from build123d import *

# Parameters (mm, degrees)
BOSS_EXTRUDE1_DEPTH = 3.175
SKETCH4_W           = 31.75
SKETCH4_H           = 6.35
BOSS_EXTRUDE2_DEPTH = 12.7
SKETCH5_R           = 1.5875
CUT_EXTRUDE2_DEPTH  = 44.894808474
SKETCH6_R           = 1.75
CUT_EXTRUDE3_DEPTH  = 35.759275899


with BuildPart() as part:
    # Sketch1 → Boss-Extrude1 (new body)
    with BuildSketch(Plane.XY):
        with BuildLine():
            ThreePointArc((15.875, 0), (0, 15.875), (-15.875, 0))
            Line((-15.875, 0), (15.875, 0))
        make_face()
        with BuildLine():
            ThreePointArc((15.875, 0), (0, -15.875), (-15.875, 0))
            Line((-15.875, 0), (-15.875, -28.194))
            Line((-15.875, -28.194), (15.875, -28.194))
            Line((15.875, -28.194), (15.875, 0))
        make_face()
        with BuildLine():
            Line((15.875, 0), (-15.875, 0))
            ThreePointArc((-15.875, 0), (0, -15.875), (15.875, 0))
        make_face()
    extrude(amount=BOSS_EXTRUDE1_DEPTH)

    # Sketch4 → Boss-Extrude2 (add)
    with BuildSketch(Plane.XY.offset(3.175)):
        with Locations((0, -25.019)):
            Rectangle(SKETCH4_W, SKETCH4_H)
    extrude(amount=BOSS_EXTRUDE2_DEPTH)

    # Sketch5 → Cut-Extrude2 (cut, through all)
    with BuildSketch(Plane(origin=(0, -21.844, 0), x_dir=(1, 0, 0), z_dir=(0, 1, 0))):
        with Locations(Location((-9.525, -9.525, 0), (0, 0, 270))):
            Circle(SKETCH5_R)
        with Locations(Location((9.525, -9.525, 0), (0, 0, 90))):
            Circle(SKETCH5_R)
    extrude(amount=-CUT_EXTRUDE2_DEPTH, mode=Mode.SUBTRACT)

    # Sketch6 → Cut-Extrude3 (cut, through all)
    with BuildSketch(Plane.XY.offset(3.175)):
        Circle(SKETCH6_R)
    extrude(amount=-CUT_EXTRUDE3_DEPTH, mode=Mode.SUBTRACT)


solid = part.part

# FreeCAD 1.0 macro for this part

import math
import FreeCAD as App
import Part
import Sketcher

V = App.Vector
Q = App.Units.Quantity


def add_polygon(sketch, points):
    """Adds a closed chain of lines whose ends are joined by coincident constraints."""
    first, n = sketch.GeometryCount, len(points)
    for a, b in zip(points, points[1:] + points[:1]):
        sketch.addGeometry(Part.LineSegment(App.Vector(*a, 0), App.Vector(*b, 0)), False)
    for i in range(n):
        sketch.addConstraint(Sketcher.Constraint("Coincident", first + i, 2, first + (i + 1) % n, 1))

doc = App.newDocument("Part")
body = doc.addObject("PartDesign::Body", "Body")

# Sketch on XY plane
sketch1 = doc.addObject("Sketcher::SketchObject", "Sketch")
body.addObject(sketch1)
sketch1.AttachmentSupport = (doc.XY_Plane, [""])
sketch1.MapMode = "FlatFace"
sketch1.addGeometry(Part.ArcOfCircle(Part.Circle(V(0, 0, 0), V(0, 0, 1), 15.875), math.radians(0), math.radians(180)), False)
sketch1.addGeometry(Part.LineSegment(V(-15.875, 0, 0), V(-15.875, -28.194, 0)), False)
sketch1.addGeometry(Part.LineSegment(V(-15.875, -28.194, 0), V(15.875, -28.194, 0)), False)
sketch1.addGeometry(Part.LineSegment(V(15.875, -28.194, 0), V(15.875, 0, 0)), False)
sketch1.addConstraint(Sketcher.Constraint("Tangent", 0, 2, 1, 1))
sketch1.addConstraint(Sketcher.Constraint("Coincident", 1, 2, 2, 1))
sketch1.addConstraint(Sketcher.Constraint("Coincident", 2, 2, 3, 1))
sketch1.addConstraint(Sketcher.Constraint("Tangent", 3, 2, 0, 1))
sketch1.addConstraint(Sketcher.Constraint("Vertical", 1))
sketch1.addConstraint(Sketcher.Constraint("Horizontal", 2))
sketch1.addConstraint(Sketcher.Constraint("Vertical", 3))
sketch1.addConstraint(Sketcher.Constraint("Coincident", 0, 3, -1, 1))
sketch1.addConstraint(Sketcher.Constraint("Radius", 0, Q("0.625 in")))
sketch1.addConstraint(Sketcher.Constraint("DistanceY", 1, 2, 1, 1, Q("1.11 in")))
pad1 = doc.addObject("PartDesign::Pad", "Pad")
body.addObject(pad1)
pad1.Profile = sketch1
pad1.Length = Q("0.125 in")

# Sketch on XY plane
sketch2 = doc.addObject("Sketcher::SketchObject", "Sketch001")
body.addObject(sketch2)
sketch2.AttachmentSupport = (doc.XY_Plane, [""])
sketch2.MapMode = "FlatFace"
sketch2.AttachmentOffset = App.Placement(V(0, 0, 0.125 * 25.4), App.Rotation())
add_polygon(sketch2, [(-15.875, -21.844), (-15.875, -28.194), (15.875, -28.194), (15.875, -21.844)])  # lines 0-3
sketch2.addConstraint(Sketcher.Constraint("Vertical", 0))
sketch2.addConstraint(Sketcher.Constraint("Horizontal", 1))
sketch2.addConstraint(Sketcher.Constraint("Vertical", 2))
sketch2.addConstraint(Sketcher.Constraint("Horizontal", 3))
sketch2.addConstraint(Sketcher.Constraint("DistanceX", 1, 1, 1, 2, Q("1.25 in")))
sketch2.addConstraint(Sketcher.Constraint("DistanceY", 0, 2, 0, 1, Q("0.25 in")))
sketch2.addConstraint(Sketcher.Constraint("DistanceY", 0, 2, -1, 1, Q("1.11 in")))
sketch2.addConstraint(Sketcher.Constraint("DistanceX", 0, 2, -1, 1, Q("0.625 in")))
pad2 = doc.addObject("PartDesign::Pad", "Pad001")
body.addObject(pad2)
pad2.Profile = sketch2
pad2.Length = Q("0.5 in")

# Sketch on XZ plane
sketch3 = doc.addObject("Sketcher::SketchObject", "Sketch002")
body.addObject(sketch3)
sketch3.AttachmentSupport = (doc.XZ_Plane, [""])
sketch3.MapMode = "FlatFace"
sketch3.AttachmentOffset = App.Placement(V(0, 0, 0.86 * 25.4), App.Rotation())
sketch3.addGeometry(Part.Circle(V(-9.525, 9.525, 0), V(0, 0, 1), 1.5875), False)
sketch3.addGeometry(Part.Circle(V(9.525, 9.525, 0), V(0, 0, 1), 1.5875), False)
sketch3.addConstraint(Sketcher.Constraint("Equal", 0, 1))
sketch3.addConstraint(Sketcher.Constraint("Symmetric", 0, 3, 1, 3, -2))
sketch3.addConstraint(Sketcher.Constraint("Diameter", 0, Q("0.125 in")))
sketch3.addConstraint(Sketcher.Constraint("DistanceX", 0, 3, 1, 3, Q("0.75 in")))
sketch3.addConstraint(Sketcher.Constraint("DistanceY", -1, 1, 0, 3, Q("0.375 in")))
pocket1 = doc.addObject("PartDesign::Pocket", "Pocket")
body.addObject(pocket1)
pocket1.Profile = sketch3
pocket1.Type = "ThroughAll"
pocket1.Reversed = True

# Sketch on XY plane
sketch4 = doc.addObject("Sketcher::SketchObject", "Sketch003")
body.addObject(sketch4)
sketch4.AttachmentSupport = (doc.XY_Plane, [""])
sketch4.MapMode = "FlatFace"
sketch4.AttachmentOffset = App.Placement(V(0, 0, 0.125 * 25.4), App.Rotation())
sketch4.addGeometry(Part.Circle(V(0, 0, 0), V(0, 0, 1), 1.75), False)
sketch4.addConstraint(Sketcher.Constraint("Coincident", 0, 3, -1, 1))
sketch4.addConstraint(Sketcher.Constraint("Diameter", 0, 3.5))
pocket2 = doc.addObject("PartDesign::Pocket", "Pocket001")
body.addObject(pocket2)
pocket2.Profile = sketch4
pocket2.Type = "ThroughAll"

doc.recompute()
